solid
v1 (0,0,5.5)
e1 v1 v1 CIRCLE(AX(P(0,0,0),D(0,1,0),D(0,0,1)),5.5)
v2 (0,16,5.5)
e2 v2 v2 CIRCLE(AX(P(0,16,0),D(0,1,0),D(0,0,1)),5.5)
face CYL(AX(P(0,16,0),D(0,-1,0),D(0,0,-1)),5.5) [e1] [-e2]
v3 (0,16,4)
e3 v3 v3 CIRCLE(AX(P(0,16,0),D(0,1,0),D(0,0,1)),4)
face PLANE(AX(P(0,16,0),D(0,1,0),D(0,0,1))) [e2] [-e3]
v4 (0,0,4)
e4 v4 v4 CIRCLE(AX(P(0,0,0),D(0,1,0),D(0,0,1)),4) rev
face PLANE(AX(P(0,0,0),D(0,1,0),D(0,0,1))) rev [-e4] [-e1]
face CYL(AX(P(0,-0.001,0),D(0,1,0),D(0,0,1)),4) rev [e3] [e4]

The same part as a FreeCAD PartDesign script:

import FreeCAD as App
import Part
import Sketcher

V = App.Vector

doc = App.newDocument("Part")
params = doc.addObject("Spreadsheet::Sheet", "Params")
for row, (alias, value) in enumerate([
    ("sketch1_diameter", "11 mm"),
    ("pad1_length", "16 mm"),
    ("sketch2_diameter", "8 mm"),
], start=1):
    params.set(f"A{row}", alias)
    params.set(f"B{row}", "=" + value)
    params.setAlias(f"B{row}", alias)

body = doc.addObject("PartDesign::Body", "Body")

# Sketch on XZ plane
sketch1 = doc.addObject("Sketcher::SketchObject", "Sketch")
body.addObject(sketch1)
sketch1.AttachmentSupport = (doc.XZ_Plane, [""])
sketch1.MapMode = "FlatFace"
sketch1.addGeometry(Part.Circle(V(0, 0, 0), V(0, 0, 1), 6), False)
sketch1.addConstraint(Sketcher.Constraint("Coincident", 0, 3, -1, 1))
sketch1.addConstraint(Sketcher.Constraint("Diameter", 0, 11.0))
sketch1.setExpression("Constraints[1]", "Params.sketch1_diameter")
pad1 = doc.addObject("PartDesign::Pad", "Pad")
body.addObject(pad1)
pad1.Profile = sketch1
pad1.setExpression("Length", "Params.pad1_length")
pad1.Reversed = True

# Sketch on XZ plane
sketch2 = doc.addObject("Sketcher::SketchObject", "Sketch001")
body.addObject(sketch2)
sketch2.AttachmentSupport = (doc.XZ_Plane, [""])
sketch2.MapMode = "FlatFace"
sketch2.AttachmentOffset = App.Placement(V(0, 0, -16), App.Rotation())
sketch2.addGeometry(Part.Circle(V(0, 0, 0), V(0, 0, 1), 4), False)
sketch2.addConstraint(Sketcher.Constraint("Coincident", 0, 3, -1, 1))
sketch2.addConstraint(Sketcher.Constraint("Diameter", 0, 8.0))
sketch2.setExpression("Constraints[1]", "Params.sketch2_diameter")
pocket1 = doc.addObject("PartDesign::Pocket", "Pocket")
body.addObject(pocket1)
pocket1.Profile = sketch2
pocket1.Type = "UpToFirst"
pocket1.Reversed = True

doc.recompute()
